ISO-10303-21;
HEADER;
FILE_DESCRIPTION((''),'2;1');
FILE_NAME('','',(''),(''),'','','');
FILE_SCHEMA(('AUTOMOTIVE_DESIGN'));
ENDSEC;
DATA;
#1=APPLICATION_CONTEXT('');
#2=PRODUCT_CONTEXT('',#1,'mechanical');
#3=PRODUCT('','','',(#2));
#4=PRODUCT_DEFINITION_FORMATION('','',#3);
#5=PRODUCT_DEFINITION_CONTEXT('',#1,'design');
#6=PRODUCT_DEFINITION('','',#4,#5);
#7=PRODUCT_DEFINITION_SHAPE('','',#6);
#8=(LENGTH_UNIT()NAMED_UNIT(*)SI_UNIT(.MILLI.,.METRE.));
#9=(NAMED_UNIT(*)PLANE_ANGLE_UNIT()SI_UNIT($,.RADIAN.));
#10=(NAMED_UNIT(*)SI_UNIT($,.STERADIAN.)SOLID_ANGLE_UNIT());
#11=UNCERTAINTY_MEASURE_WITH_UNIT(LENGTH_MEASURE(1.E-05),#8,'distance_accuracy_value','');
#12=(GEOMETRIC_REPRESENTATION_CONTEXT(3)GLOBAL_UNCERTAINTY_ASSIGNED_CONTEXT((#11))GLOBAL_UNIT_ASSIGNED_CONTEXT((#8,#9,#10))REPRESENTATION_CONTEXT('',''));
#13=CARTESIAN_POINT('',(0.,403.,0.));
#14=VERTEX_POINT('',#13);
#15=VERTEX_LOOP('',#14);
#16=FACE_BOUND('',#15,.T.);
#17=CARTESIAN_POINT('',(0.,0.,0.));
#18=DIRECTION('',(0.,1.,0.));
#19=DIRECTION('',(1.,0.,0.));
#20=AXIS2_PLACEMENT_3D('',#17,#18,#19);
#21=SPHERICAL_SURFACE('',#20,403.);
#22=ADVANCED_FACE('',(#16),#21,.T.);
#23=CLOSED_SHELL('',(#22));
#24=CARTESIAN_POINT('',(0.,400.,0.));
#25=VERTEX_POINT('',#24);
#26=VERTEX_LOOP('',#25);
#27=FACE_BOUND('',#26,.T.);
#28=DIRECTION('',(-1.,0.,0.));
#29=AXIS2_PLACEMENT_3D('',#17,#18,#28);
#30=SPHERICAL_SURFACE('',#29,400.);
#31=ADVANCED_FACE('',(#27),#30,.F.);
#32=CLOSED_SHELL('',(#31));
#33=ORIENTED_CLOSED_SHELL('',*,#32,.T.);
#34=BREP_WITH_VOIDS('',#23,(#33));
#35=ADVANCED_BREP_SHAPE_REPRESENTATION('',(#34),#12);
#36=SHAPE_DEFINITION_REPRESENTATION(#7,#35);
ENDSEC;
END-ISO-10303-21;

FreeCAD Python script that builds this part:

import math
import FreeCAD as App
import Part
import Sketcher
Q = App.Units.Quantity

doc = App.newDocument("Part")
body = doc.addObject("PartDesign::Body", "Body")

# Sketch on XY plane
sketch1 = doc.addObject("Sketcher::SketchObject", "Sketch")
body.addObject(sketch1)
sketch1.AttachmentSupport = (doc.XY_Plane, [""])
sketch1.MapMode = "FlatFace"
sketch1.addGeometry(Part.LineSegment(App.Vector(0, 400, 0), App.Vector(0, 403, 0)), False)
sketch1.addGeometry(Part.ArcOfCircle(Part.Circle(App.Vector(0, 0, 0), App.Vector(0, 0, 1), 403), math.radians(90), math.radians(270)), False)
sketch1.addGeometry(Part.LineSegment(App.Vector(0, -403, 0), App.Vector(0, -400, 0)), False)
sketch1.addGeometry(Part.ArcOfCircle(Part.Circle(App.Vector(0, 0, 0), App.Vector(0, 0, 1), 400), math.radians(90), math.radians(270)), False)
sketch1.addConstraint(Sketcher.Constraint("Coincident", 0, 2, 1, 1))
sketch1.addConstraint(Sketcher.Constraint("Coincident", 1, 2, 2, 1))
sketch1.addConstraint(Sketcher.Constraint("Coincident", 2, 2, 3, 2))
sketch1.addConstraint(Sketcher.Constraint("Coincident", 3, 1, 0, 1))
sketch1.addConstraint(Sketcher.Constraint("Vertical", 0))
sketch1.addConstraint(Sketcher.Constraint("Vertical", 2))
sketch1.addConstraint(Sketcher.Constraint("Coincident", 1, 3, -1, 1))
sketch1.addConstraint(Sketcher.Constraint("Coincident", 3, 3, -1, 1))
sketch1.addConstraint(Sketcher.Constraint("PointOnObject", 0, 2, -2))
sketch1.addConstraint(Sketcher.Constraint("PointOnObject", 2, 2, -2))
sketch1.addConstraint(Sketcher.Constraint("Radius", 1, Q("403 mm")))
sketch1.addConstraint(Sketcher.Constraint("Radius", 3, Q("400 mm")))
revolution = doc.addObject("PartDesign::Revolution", "Revolution")
body.addObject(revolution)
revolution.Profile = sketch1
revolution.ReferenceAxis = (sketch1, ["V_Axis"])
revolution.Angle = 360

doc.recompute()
